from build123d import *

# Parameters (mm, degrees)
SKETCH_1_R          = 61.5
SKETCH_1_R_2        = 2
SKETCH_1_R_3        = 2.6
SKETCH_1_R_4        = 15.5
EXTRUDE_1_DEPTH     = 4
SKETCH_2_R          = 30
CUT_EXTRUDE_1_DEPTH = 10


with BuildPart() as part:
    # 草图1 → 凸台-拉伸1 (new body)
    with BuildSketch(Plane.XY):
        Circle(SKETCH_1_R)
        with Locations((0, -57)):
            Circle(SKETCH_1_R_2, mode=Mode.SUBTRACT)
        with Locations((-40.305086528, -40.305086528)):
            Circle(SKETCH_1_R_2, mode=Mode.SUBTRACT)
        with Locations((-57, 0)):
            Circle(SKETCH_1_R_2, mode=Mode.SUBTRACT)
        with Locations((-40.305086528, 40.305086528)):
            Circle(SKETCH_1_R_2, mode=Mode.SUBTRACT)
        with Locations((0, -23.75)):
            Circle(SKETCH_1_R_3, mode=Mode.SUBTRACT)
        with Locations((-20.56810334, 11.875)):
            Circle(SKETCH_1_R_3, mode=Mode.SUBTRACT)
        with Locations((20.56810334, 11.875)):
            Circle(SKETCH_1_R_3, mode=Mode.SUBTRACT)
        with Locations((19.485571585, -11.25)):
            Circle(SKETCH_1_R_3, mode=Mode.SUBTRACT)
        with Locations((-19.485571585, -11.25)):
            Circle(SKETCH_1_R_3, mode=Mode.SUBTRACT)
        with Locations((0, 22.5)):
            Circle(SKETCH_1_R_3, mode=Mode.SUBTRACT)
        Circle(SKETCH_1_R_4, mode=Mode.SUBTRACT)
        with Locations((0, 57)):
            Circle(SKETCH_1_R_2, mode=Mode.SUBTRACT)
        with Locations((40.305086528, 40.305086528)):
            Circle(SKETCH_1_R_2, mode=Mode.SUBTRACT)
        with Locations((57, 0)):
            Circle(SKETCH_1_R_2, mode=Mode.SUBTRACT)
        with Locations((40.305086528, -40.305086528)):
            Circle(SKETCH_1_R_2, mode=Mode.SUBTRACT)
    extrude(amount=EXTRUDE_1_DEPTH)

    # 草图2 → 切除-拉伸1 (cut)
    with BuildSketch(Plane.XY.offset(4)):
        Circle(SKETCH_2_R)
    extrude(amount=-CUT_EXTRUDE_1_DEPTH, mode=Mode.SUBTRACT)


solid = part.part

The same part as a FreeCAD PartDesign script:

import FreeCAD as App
import Part
import Sketcher

doc = App.newDocument("Part")
params = doc.addObject("Spreadsheet::Sheet", "Params")
for row, (alias, value) in enumerate([
    ("sketch1_diameter", "123 mm"),
    ("sketch1_diameter2", "4 mm"),
    ("sketch1_diameter3", "31 mm"),
    ("sketch1_diameter4", "5.2 mm"),
    ("pad1_length", "4 mm"),
    ("sketch2_diameter", "60 mm"),
    ("pocket1_length", "10 mm"),
], start=1):
    params.set(f"A{row}", alias)
    params.set(f"B{row}", "=" + value)
    params.setAlias(f"B{row}", alias)

body = doc.addObject("PartDesign::Body", "Body")

sketch1 = body.newObject("Sketcher::SketchObject", "Sketch")
sketch1.AttachmentSupport = (doc.getObject("XY_Plane"), [""])
sketch1.MapMode = "FlatFace"
sketch1.addGeometry([
    Part.Circle(App.Vector(0, 0, 0), App.Vector(0, 0, 1), 61.5),
    Part.Circle(App.Vector(-40.305087, -40.305087, 0), App.Vector(0, 0, 1), 2),
    Part.Circle(App.Vector(-19.485572, -11.25, 0), App.Vector(0, 0, 1), 2.6),
    Part.Circle(App.Vector(0, -57, 0), App.Vector(0, 0, 1), 2),
    Part.Circle(App.Vector(40.305087, -40.305087, 0), App.Vector(0, 0, 1), 2),
    Part.Circle(App.Vector(0, -23.75, 0), App.Vector(0, 0, 1), 2.6),
    Part.Circle(App.Vector(19.485572, -11.25, 0), App.Vector(0, 0, 1), 2.6),
    Part.Circle(App.Vector(-57, 0, 0), App.Vector(0, 0, 1), 2),
    Part.Circle(App.Vector(-20.568103, 11.875, 0), App.Vector(0, 0, 1), 2.6),
    Part.Circle(App.Vector(-40.305087, 40.305087, 0), App.Vector(0, 0, 1), 2),
    Part.Circle(App.Vector(0, 0, 0), App.Vector(0, 0, 1), 15.5),
    Part.Circle(App.Vector(20.568103, 11.875, 0), App.Vector(0, 0, 1), 2.6),
    Part.Circle(App.Vector(0, 22.5, 0), App.Vector(0, 0, 1), 2.6),
    Part.Circle(App.Vector(57, 0, 0), App.Vector(0, 0, 1), 2),
    Part.Circle(App.Vector(0, 57, 0), App.Vector(0, 0, 1), 2),
    Part.Circle(App.Vector(40.305087, 40.305087, 0), App.Vector(0, 0, 1), 2),
], False)
sketch1.addConstraint([
    Sketcher.Constraint("Coincident", 0, 3, -1, 1),
    Sketcher.Constraint("Coincident", 10, 3, -1, 1),
    Sketcher.Constraint("Equal", 1, 3),
    Sketcher.Constraint("Equal", 3, 4),
    Sketcher.Constraint("Equal", 2, 5),
    Sketcher.Constraint("Equal", 5, 6),
    Sketcher.Constraint("Equal", 4, 7),
    Sketcher.Constraint("Equal", 6, 8),
    Sketcher.Constraint("Equal", 7, 9),
    Sketcher.Constraint("Equal", 8, 11),
    Sketcher.Constraint("Equal", 11, 12),
    Sketcher.Constraint("Equal", 9, 13),
    Sketcher.Constraint("Equal", 13, 14),
    Sketcher.Constraint("Equal", 14, 15),
    Sketcher.Constraint("Symmetric", 4, 3, 9, 3, -1, 1),
    Sketcher.Constraint("Symmetric", 7, 3, 13, 3, -1, 1),
    Sketcher.Constraint("Symmetric", 3, 3, 14, 3, -1, 1),
    Sketcher.Constraint("Symmetric", 1, 3, 15, 3, -1, 1),
    Sketcher.Constraint("Symmetric", 1, 3, 4, 3, -2),
    Sketcher.Constraint("Symmetric", 2, 3, 6, 3, -2),
    Sketcher.Constraint("Symmetric", 8, 3, 11, 3, -2),
    Sketcher.Constraint("PointOnObject", 3, 3, -2),
    Sketcher.Constraint("PointOnObject", 5, 3, -2),
    Sketcher.Constraint("PointOnObject", 7, 3, -1),
    Sketcher.Constraint("PointOnObject", 12, 3, -2),
    Sketcher.Constraint("Diameter", 0, 123.0),
    Sketcher.Constraint("Diameter", 1, 4.0),
    Sketcher.Constraint("Diameter", 10, 31.0),
    Sketcher.Constraint("Diameter", 2, 5.2),
    Sketcher.Constraint("DistanceY", 3, 3, -1, 1, 57.0),
    Sketcher.Constraint("DistanceX", 7, 3, -1, 1, 57.0),
    Sketcher.Constraint("DistanceY", -1, 1, 12, 3, 22.5),
    Sketcher.Constraint("DistanceY", 5, 3, 2, 3, 12.5),
    Sketcher.Constraint("DistanceY", 2, 3, -1, 1, 11.25),
    Sketcher.Constraint("DistanceY", -1, 1, 8, 3, 11.875),
    Sketcher.Constraint("DistanceX", 2, 3, -1, 1, 19.485572),
    Sketcher.Constraint("DistanceX", 2, 3, 4, 3, 59.790658),
    Sketcher.Constraint("DistanceX", 8, 3, 2, 3, 1.082532),
    Sketcher.Constraint("DistanceY", 1, 3, -1, 1, 40.305087),
])
sketch1.setExpression("Constraints[25]", "Params.sketch1_diameter")
sketch1.setExpression("Constraints[26]", "Params.sketch1_diameter2")
sketch1.setExpression("Constraints[27]", "Params.sketch1_diameter3")
sketch1.setExpression("Constraints[28]", "Params.sketch1_diameter4")
pad1 = body.newObject("PartDesign::Pad", "Pad")
pad1.Profile = sketch1
pad1.setExpression("Length", "Params.pad1_length")

sketch2 = body.newObject("Sketcher::SketchObject", "Sketch001")
sketch2.AttachmentSupport = (doc.getObject("XY_Plane"), [""])
sketch2.MapMode = "FlatFace"
sketch2.AttachmentOffset = App.Placement(App.Vector(0, 0, 4), App.Rotation())
sketch2.addGeometry(Part.Circle(App.Vector(0, 0, 0), App.Vector(0, 0, 1), 30), False)
sketch2.addConstraint([
    Sketcher.Constraint("Coincident", 0, 3, -1, 1),
    Sketcher.Constraint("Diameter", 0, 60.0),
])
sketch2.setExpression("Constraints[1]", "Params.sketch2_diameter")
pocket1 = body.newObject("PartDesign::Pocket", "Pocket")
pocket1.Profile = sketch2
pocket1.setExpression("Length", "Params.pocket1_length")

doc.recompute()
